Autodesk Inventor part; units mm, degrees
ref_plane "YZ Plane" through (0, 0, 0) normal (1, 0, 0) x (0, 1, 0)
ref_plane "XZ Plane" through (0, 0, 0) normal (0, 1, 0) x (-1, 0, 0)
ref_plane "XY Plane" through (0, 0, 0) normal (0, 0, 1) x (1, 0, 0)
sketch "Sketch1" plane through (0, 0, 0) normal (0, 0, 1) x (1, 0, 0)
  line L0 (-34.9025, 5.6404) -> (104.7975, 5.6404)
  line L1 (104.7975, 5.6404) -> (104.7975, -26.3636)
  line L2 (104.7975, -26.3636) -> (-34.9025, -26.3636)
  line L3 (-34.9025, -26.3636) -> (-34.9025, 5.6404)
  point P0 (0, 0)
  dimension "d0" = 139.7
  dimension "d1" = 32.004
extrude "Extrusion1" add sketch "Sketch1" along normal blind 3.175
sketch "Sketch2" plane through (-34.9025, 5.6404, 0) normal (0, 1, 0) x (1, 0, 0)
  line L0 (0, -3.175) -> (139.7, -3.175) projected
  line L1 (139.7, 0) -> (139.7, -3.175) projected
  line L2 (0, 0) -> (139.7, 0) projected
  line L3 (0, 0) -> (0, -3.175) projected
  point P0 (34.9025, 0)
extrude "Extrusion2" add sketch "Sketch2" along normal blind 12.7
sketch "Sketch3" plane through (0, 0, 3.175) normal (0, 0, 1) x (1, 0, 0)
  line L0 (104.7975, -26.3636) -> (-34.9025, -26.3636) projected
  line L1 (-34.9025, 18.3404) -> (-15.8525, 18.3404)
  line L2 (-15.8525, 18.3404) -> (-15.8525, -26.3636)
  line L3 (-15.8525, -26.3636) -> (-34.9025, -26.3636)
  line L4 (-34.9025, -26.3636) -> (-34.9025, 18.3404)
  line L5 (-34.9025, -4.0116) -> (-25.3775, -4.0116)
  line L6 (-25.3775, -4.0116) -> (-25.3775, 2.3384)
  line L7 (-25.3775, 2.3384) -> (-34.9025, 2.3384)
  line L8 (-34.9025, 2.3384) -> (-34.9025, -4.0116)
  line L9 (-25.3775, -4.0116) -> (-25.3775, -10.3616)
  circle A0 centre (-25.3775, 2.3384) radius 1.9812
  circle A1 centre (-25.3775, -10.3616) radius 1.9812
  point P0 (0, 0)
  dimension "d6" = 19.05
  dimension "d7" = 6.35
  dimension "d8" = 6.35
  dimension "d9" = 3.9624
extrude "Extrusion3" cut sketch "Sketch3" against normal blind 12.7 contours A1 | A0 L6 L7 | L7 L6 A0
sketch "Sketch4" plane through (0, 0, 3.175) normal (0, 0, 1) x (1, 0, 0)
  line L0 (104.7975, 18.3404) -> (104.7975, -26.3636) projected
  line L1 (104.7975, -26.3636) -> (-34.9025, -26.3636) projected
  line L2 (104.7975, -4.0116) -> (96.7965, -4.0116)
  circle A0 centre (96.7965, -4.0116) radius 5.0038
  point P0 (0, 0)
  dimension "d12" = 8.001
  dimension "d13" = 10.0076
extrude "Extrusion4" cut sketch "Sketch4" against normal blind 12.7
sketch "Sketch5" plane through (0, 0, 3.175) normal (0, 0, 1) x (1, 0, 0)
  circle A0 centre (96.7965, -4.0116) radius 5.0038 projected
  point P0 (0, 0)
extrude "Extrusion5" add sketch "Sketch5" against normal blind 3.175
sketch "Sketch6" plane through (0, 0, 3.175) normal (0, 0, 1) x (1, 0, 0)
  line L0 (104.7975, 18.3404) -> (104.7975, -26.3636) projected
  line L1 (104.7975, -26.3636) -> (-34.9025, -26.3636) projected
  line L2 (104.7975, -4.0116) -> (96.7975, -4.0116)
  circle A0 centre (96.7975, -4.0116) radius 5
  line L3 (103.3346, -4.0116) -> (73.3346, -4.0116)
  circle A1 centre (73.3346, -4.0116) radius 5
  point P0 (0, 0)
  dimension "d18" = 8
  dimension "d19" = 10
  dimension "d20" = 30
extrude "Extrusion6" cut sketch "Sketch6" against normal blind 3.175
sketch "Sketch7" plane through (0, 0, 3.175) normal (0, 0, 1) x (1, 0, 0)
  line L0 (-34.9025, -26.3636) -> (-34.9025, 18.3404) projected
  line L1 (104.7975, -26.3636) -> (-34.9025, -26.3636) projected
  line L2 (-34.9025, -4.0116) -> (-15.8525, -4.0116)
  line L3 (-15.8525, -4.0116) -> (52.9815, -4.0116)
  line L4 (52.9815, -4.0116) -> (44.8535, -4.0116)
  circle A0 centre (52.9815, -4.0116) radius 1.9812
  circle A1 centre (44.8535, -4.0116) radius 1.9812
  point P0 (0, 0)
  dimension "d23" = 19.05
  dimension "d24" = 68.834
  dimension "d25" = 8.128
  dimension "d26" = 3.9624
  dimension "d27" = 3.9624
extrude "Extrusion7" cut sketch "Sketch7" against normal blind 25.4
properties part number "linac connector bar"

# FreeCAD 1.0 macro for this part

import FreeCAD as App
import Part
import Sketcher

V = App.Vector
Q = App.Units.Quantity


def add_polygon(sketch, points):
    """Adds a closed chain of lines whose ends are joined by coincident constraints."""
    first, n = sketch.GeometryCount, len(points)
    for a, b in zip(points, points[1:] + points[:1]):
        sketch.addGeometry(Part.LineSegment(App.Vector(*a, 0), App.Vector(*b, 0)), False)
    for i in range(n):
        sketch.addConstraint(Sketcher.Constraint("Coincident", first + i, 2, first + (i + 1) % n, 1))

doc = App.newDocument("Part")
body = doc.addObject("PartDesign::Body", "Body")

sketch1 = doc.addObject("Sketcher::SketchObject", "Sketch")
body.addObject(sketch1)
sketch1.AttachmentSupport = (doc.XY_Plane, [""])
sketch1.MapMode = "FlatFace"
add_polygon(sketch1, [(105, 6), (-35, 6), (-35, -26), (105, -26)])
sketch1.addConstraint([
    Sketcher.Constraint("Horizontal", 0),
    Sketcher.Constraint("Vertical", 1),
    Sketcher.Constraint("Horizontal", 2),
    Sketcher.Constraint("Vertical", 3),
    Sketcher.Constraint("DistanceX", 0, 2, 0, 1, Q("5.5 in")),
    Sketcher.Constraint("DistanceY", 1, 2, 1, 1, Q("1.26 in")),
    Sketcher.Constraint("DistanceX", 0, 2, -1, 1, Q("34.9025 mm")),
    Sketcher.Constraint("DistanceY", -1, 1, 0, 2, Q("5.6404 mm")),
])
pad1 = doc.addObject("PartDesign::Pad", "Pad")
body.addObject(pad1)
pad1.Profile = sketch1
pad1.Length = Q("0.125 in")

sketch2 = doc.addObject("Sketcher::SketchObject", "Sketch001")
body.addObject(sketch2)
sketch2.AttachmentSupport = (doc.XZ_Plane, [""])
sketch2.MapMode = "FlatFace"
sketch2.AttachmentOffset = App.Placement(V(0, 0, -5.6404), App.Rotation())
add_polygon(sketch2, [(-34.9, 0), (-34.9, 3.2), (104.8, 3.2), (104.8, 0)])
sketch2.addConstraint([
    Sketcher.Constraint("Vertical", 0),
    Sketcher.Constraint("Horizontal", 1),
    Sketcher.Constraint("Vertical", 2),
    Sketcher.Constraint("Horizontal", 3),
    Sketcher.Constraint("PointOnObject", 2, 2, -1),
    Sketcher.Constraint("DistanceX", 1, 1, 1, 2, Q("5.5 in")),
    Sketcher.Constraint("DistanceY", 0, 1, 0, 2, Q("0.125 in")),
    Sketcher.Constraint("DistanceX", 0, 2, -1, 1, Q("34.9025 mm")),
])
pad2 = doc.addObject("PartDesign::Pad", "Pad001")
body.addObject(pad2)
pad2.Profile = sketch2
pad2.Length = Q("0.5 in")
pad2.Reversed = True

sketch3 = doc.addObject("Sketcher::SketchObject", "Sketch002")
body.addObject(sketch3)
sketch3.AttachmentSupport = (doc.XY_Plane, [""])
sketch3.MapMode = "FlatFace"
sketch3.AttachmentOffset = App.Placement(V(0, 0, 0.125 * 25.4), App.Rotation())
sketch3.addGeometry([
    Part.Circle(V(-25.4, -10.4, 0), V(0, 0, 1), 2),
    Part.Circle(V(-25.4, 2.3, 0), V(0, 0, 1), 2),
], False)
sketch3.addConstraint([
    Sketcher.Constraint("Equal", 0, 1),
    Sketcher.Constraint("Vertical", 0, 3, 1, 3),
    Sketcher.Constraint("Diameter", 0, Q("0.156 in")),
    Sketcher.Constraint("DistanceY", 0, 3, 1, 3, Q("0.5 in")),
    Sketcher.Constraint("DistanceX", 0, 3, -1, 1, Q("25.3775 mm")),
    Sketcher.Constraint("DistanceY", 0, 3, -1, 1, Q("10.3616 mm")),
])
pocket1 = doc.addObject("PartDesign::Pocket", "Pocket")
body.addObject(pocket1)
pocket1.Profile = sketch3
pocket1.Length = Q("0.5 in")

sketch4 = doc.addObject("Sketcher::SketchObject", "Sketch003")
body.addObject(sketch4)
sketch4.AttachmentSupport = (doc.XY_Plane, [""])
sketch4.MapMode = "FlatFace"
sketch4.AttachmentOffset = App.Placement(V(0, 0, 0.125 * 25.4), App.Rotation())
sketch4.addGeometry(Part.Circle(V(97, -4, 0), V(0, 0, 1), 5), False)
sketch4.addConstraint([
    Sketcher.Constraint("Diameter", 0, Q("0.394 in")),
    Sketcher.Constraint("DistanceX", -1, 1, 0, 3, Q("96.7965 mm")),
    Sketcher.Constraint("DistanceY", 0, 3, -1, 1, Q("4.0116 mm")),
])
pocket2 = doc.addObject("PartDesign::Pocket", "Pocket001")
body.addObject(pocket2)
pocket2.Profile = sketch4
pocket2.Length = Q("0.5 in")

sketch5 = doc.addObject("Sketcher::SketchObject", "Sketch004")
body.addObject(sketch5)
sketch5.AttachmentSupport = (doc.XY_Plane, [""])
sketch5.MapMode = "FlatFace"
sketch5.AttachmentOffset = App.Placement(V(0, 0, 0.125 * 25.4), App.Rotation())
sketch5.addGeometry(Part.Circle(V(97, -4, 0), V(0, 0, 1), 5), False)
sketch5.addConstraint([
    Sketcher.Constraint("Diameter", 0, Q("0.394 in")),
    Sketcher.Constraint("DistanceX", -1, 1, 0, 3, Q("96.7965 mm")),
    Sketcher.Constraint("DistanceY", 0, 3, -1, 1, Q("4.0116 mm")),
])
pad3 = doc.addObject("PartDesign::Pad", "Pad002")
body.addObject(pad3)
pad3.Profile = sketch5
pad3.Length = Q("0.125 in")
pad3.Reversed = True

sketch6 = doc.addObject("Sketcher::SketchObject", "Sketch005")
body.addObject(sketch6)
sketch6.AttachmentSupport = (doc.XY_Plane, [""])
sketch6.MapMode = "FlatFace"
sketch6.AttachmentOffset = App.Placement(V(0, 0, 0.125 * 25.4), App.Rotation())
sketch6.addGeometry([
    Part.Circle(V(97, -4, 0), V(0, 0, 1), 5),
    Part.Circle(V(73, -4, 0), V(0, 0, 1), 5),
], False)
sketch6.addConstraint([
    Sketcher.Constraint("Equal", 0, 1),
    Sketcher.Constraint("Horizontal", 0, 3, 1, 3),
    Sketcher.Constraint("Diameter", 0, Q("0.3937 in")),
    Sketcher.Constraint("DistanceX", -1, 1, 1, 3, Q("2.8872 in")),
    Sketcher.Constraint("DistanceX", -1, 1, 0, 3, Q("96.7975 mm")),
    Sketcher.Constraint("DistanceY", 0, 3, -1, 1, Q("4.0116 mm")),
])
pocket3 = doc.addObject("PartDesign::Pocket", "Pocket002")
body.addObject(pocket3)
pocket3.Profile = sketch6
pocket3.Length = Q("0.125 in")

sketch7 = doc.addObject("Sketcher::SketchObject", "Sketch006")
body.addObject(sketch7)
sketch7.AttachmentSupport = (doc.XY_Plane, [""])
sketch7.MapMode = "FlatFace"
sketch7.AttachmentOffset = App.Placement(V(0, 0, 0.125 * 25.4), App.Rotation())
sketch7.addGeometry([
    Part.Circle(V(44.9, -4, 0), V(0, 0, 1), 2),
    Part.Circle(V(53, -4, 0), V(0, 0, 1), 2),
], False)
sketch7.addConstraint([
    Sketcher.Constraint("Equal", 0, 1),
    Sketcher.Constraint("Horizontal", 0, 3, 1, 3),
    Sketcher.Constraint("Diameter", 0, Q("0.156 in")),
    Sketcher.Constraint("DistanceX", 0, 3, 1, 3, Q("0.32 in")),
    Sketcher.Constraint("DistanceX", -1, 1, 0, 3, Q("44.8535 mm")),
    Sketcher.Constraint("DistanceY", 0, 3, -1, 1, Q("4.0116 mm")),
])
pocket4 = doc.addObject("PartDesign::Pocket", "Pocket003")
body.addObject(pocket4)
pocket4.Profile = sketch7
pocket4.Length = Q("1 in")

doc.recompute()
